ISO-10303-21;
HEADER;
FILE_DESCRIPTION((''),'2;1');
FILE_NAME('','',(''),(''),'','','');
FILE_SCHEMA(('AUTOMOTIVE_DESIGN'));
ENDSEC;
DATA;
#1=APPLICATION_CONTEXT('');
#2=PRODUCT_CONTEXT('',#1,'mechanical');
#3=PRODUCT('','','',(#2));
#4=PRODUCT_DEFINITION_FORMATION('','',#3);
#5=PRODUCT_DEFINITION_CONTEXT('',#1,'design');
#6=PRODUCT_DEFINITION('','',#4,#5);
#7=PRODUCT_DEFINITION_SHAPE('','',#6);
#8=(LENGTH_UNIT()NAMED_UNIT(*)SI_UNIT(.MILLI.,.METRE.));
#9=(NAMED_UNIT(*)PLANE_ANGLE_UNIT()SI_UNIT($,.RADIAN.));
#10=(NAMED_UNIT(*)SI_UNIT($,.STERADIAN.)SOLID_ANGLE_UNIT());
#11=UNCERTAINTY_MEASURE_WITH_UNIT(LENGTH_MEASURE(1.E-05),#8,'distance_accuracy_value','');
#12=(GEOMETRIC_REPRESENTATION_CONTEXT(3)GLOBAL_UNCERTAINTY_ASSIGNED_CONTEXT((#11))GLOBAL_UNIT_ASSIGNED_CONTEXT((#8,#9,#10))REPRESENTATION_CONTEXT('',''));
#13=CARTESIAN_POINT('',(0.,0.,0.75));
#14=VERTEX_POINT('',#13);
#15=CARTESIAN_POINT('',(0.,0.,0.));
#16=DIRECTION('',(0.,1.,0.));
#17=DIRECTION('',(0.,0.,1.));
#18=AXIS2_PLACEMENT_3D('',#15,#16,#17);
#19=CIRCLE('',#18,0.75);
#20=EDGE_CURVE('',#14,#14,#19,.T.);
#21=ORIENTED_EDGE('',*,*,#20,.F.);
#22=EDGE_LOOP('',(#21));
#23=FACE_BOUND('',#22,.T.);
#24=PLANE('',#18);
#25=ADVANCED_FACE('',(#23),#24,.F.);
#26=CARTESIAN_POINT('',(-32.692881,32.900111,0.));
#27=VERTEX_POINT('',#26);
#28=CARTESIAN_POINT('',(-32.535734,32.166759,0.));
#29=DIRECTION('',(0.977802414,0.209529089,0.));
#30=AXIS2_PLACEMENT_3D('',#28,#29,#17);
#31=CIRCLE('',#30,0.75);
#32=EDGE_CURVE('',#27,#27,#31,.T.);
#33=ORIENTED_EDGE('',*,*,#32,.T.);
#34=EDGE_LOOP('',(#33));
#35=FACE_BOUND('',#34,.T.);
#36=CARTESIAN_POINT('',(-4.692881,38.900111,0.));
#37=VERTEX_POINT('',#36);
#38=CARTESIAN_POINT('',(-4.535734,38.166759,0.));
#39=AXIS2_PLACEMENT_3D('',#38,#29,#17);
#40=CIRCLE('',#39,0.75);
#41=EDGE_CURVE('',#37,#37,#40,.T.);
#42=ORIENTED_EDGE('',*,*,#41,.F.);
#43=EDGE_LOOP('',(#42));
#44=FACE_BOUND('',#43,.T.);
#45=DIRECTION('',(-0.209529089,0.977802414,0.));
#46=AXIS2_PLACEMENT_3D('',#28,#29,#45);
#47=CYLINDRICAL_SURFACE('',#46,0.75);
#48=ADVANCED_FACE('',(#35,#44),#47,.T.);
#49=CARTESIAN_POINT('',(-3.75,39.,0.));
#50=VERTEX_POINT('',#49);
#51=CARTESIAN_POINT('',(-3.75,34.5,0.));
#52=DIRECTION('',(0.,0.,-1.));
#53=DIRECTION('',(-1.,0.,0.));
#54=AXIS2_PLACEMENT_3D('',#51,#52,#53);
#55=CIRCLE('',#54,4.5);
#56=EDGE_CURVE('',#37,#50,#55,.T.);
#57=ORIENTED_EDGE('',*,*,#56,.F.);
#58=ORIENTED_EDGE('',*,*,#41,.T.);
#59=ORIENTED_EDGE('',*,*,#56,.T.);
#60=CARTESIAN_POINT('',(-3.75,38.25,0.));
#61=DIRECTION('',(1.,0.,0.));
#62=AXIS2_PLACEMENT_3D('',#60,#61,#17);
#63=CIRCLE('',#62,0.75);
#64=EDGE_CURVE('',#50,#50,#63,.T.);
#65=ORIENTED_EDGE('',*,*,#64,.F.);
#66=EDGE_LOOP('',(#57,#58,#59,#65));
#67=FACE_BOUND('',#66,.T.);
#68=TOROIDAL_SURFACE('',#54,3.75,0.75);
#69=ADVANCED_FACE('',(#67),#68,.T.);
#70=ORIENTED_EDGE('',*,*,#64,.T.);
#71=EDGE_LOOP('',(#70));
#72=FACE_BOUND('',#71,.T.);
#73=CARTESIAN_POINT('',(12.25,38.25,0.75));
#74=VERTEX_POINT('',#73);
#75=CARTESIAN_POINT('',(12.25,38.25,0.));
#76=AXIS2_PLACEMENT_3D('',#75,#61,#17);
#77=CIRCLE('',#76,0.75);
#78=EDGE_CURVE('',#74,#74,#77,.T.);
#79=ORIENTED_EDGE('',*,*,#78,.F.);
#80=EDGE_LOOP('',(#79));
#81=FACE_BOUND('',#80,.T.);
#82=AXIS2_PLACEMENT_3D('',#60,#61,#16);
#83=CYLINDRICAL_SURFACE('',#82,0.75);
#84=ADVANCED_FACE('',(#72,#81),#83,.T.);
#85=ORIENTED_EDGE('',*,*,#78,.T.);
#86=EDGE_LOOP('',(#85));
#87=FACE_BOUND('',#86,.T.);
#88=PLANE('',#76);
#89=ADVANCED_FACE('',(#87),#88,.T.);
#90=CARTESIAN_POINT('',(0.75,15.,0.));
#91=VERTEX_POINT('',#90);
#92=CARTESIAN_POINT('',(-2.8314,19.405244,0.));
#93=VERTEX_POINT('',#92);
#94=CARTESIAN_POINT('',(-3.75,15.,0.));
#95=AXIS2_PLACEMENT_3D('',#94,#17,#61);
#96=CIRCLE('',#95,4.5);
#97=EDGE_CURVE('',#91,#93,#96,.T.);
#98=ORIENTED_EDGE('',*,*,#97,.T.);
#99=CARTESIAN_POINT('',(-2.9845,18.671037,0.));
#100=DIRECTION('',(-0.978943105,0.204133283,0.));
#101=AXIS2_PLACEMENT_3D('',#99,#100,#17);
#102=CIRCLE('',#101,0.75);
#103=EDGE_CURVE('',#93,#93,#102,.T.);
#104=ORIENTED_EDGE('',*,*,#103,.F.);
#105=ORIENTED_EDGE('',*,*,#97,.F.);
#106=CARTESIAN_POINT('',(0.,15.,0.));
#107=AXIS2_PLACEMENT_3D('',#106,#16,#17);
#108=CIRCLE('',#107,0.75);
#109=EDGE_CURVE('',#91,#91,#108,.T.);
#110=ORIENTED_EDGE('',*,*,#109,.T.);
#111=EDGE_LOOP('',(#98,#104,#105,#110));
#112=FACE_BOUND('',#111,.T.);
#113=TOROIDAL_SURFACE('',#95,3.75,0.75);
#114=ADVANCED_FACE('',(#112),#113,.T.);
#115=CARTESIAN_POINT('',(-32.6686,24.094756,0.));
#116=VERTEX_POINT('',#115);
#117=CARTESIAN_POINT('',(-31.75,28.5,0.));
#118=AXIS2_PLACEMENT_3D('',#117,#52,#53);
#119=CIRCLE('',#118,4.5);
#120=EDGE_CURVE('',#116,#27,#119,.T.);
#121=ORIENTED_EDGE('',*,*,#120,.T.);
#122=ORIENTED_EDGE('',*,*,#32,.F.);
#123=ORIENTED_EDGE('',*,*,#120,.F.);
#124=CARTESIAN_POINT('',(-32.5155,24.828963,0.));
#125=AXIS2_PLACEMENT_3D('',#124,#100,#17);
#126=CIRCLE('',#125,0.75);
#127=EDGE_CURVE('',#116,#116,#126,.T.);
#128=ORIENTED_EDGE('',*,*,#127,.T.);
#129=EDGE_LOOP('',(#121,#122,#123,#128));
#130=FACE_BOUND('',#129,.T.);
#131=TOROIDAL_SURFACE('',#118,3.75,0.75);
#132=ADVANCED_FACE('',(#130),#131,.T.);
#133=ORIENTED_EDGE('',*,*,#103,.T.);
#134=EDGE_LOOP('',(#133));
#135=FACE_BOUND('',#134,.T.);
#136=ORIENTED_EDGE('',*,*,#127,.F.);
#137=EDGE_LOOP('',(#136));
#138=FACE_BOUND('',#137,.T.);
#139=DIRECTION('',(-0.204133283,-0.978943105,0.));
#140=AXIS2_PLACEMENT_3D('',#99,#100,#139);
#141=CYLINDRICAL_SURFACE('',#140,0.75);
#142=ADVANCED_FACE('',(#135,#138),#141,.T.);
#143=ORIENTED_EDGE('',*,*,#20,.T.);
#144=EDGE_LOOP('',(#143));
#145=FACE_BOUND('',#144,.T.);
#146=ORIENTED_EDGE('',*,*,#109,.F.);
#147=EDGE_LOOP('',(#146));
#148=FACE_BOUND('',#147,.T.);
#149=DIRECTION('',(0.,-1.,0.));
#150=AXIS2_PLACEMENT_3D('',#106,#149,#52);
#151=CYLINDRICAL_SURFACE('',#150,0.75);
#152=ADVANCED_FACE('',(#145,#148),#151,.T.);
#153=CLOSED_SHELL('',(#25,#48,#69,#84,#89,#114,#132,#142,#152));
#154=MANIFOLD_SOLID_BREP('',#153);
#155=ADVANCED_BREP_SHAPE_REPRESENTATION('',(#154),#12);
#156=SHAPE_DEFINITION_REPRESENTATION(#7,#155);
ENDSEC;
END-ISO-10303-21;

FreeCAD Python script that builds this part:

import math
import FreeCAD as App
import Part
import Sketcher
from FreeCAD import Vector
Q = App.Units.Quantity

doc = App.newDocument("Part")
params = doc.addObject("Spreadsheet::Sheet", "Params")
for row, (alias, value) in enumerate([
    ("sketch1_diameter", "1.5 mm"),
    ("sketch2_width", "16 mm"),
    ("sketch2_height", "15 mm"),
    ("sketch2_radius", "3.75 mm"),
], start=1):
    params.set(f"A{row}", alias)
    params.set(f"B{row}", "=" + value)
    params.setAlias(f"B{row}", alias)

body = doc.addObject("PartDesign::Body", "Body")

# Sketch on XZ plane
sketch1 = doc.addObject("Sketcher::SketchObject", "Sketch")
body.addObject(sketch1)
sketch1.AttachmentSupport = (doc.XZ_Plane, [""])
sketch1.MapMode = "FlatFace"
sketch1.addGeometry(Part.Circle(Vector(0, 0, 0), Vector(0, 0, 1), 0.75), False)
sketch1.addConstraint([
    Sketcher.Constraint("Coincident", 0, 3, -1, 1),
    Sketcher.Constraint("Diameter", 0, Q("1.5 mm")),
])
sketch1.setExpression("Constraints[1]", "Params.sketch1_diameter")

# Sketch on XY plane
sketch2 = doc.addObject("Sketcher::SketchObject", "Sketch001")
body.addObject(sketch2)
sketch2.AttachmentSupport = (doc.XY_Plane, [""])
sketch2.MapMode = "FlatFace"
sketch2.addGeometry([
    Part.LineSegment(Vector(0, 0, 0), Vector(0, 15, 0)),  # 0
    Part.ArcOfCircle(Part.Circle(Vector(-3.75, 15, 0), Vector(0, 0, 1), 3.75), math.radians(0), math.radians(78.221233)),  # 1
    Part.LineSegment(Vector(-2.9845, 18.671037, 0), Vector(-32.5155, 24.828963, 0)),  # 2
    Part.ArcOfCircle(Part.Circle(Vector(-31.75, 28.5, 0), Vector(0, 0, 1), 3.75), math.radians(102.094757), math.radians(258.221233)),  # 3
    Part.LineSegment(Vector(-32.535734, 32.166759, 0), Vector(-4.535734, 38.166759, 0)),  # 4
    Part.ArcOfCircle(Part.Circle(Vector(-3.75, 34.5, 0), Vector(0, 0, 1), 3.75), math.radians(90), math.radians(102.094757)),  # 5
    Part.LineSegment(Vector(-3.75, 38.25, 0), Vector(12.25, 38.25, 0)),  # 6
], False)
sketch2.addConstraint([
    Sketcher.Constraint("Tangent", 0, 2, 1, 1),
    Sketcher.Constraint("Tangent", 1, 2, 2, 1),
    Sketcher.Constraint("Tangent", 2, 2, 3, 2),
    Sketcher.Constraint("Tangent", 3, 1, 4, 1),
    Sketcher.Constraint("Tangent", 4, 2, 5, 2),
    Sketcher.Constraint("Tangent", 5, 1, 6, 1),
    Sketcher.Constraint("Vertical", 0),
    Sketcher.Constraint("Horizontal", 6),
    Sketcher.Constraint("Coincident", 0, 1, -1, 1),
    Sketcher.Constraint("Equal", 1, 3),
    Sketcher.Constraint("Equal", 3, 5),
    Sketcher.Constraint("Vertical", 1, 3, 5, 3),
    Sketcher.Constraint("DistanceX", 6, 1, 6, 2, Q("16 mm")),
    Sketcher.Constraint("DistanceY", 0, 1, 0, 2, Q("15 mm")),
    Sketcher.Constraint("Radius", 1, Q("3.75 mm")),
    Sketcher.Constraint("DistanceX", 3, 3, 1, 3, Q("28 mm")),
    Sketcher.Constraint("DistanceY", 3, 3, 5, 3, Q("6 mm")),
    Sketcher.Constraint("DistanceY", -1, 1, 3, 3, Q("28.5 mm")),
])
sketch2.setExpression("Constraints[12]", "Params.sketch2_width")
sketch2.setExpression("Constraints[13]", "Params.sketch2_height")
sketch2.setExpression("Constraints[14]", "Params.sketch2_radius")
doc.recompute()

additivepipe = doc.addObject("PartDesign::AdditivePipe", "AdditivePipe")
body.addObject(additivepipe)
additivepipe.Profile = sketch1
additivepipe.Spine = (sketch2, ["Edge1", "Edge2", "Edge3", "Edge4", "Edge5", "Edge6", "Edge7"])

doc.recompute()
